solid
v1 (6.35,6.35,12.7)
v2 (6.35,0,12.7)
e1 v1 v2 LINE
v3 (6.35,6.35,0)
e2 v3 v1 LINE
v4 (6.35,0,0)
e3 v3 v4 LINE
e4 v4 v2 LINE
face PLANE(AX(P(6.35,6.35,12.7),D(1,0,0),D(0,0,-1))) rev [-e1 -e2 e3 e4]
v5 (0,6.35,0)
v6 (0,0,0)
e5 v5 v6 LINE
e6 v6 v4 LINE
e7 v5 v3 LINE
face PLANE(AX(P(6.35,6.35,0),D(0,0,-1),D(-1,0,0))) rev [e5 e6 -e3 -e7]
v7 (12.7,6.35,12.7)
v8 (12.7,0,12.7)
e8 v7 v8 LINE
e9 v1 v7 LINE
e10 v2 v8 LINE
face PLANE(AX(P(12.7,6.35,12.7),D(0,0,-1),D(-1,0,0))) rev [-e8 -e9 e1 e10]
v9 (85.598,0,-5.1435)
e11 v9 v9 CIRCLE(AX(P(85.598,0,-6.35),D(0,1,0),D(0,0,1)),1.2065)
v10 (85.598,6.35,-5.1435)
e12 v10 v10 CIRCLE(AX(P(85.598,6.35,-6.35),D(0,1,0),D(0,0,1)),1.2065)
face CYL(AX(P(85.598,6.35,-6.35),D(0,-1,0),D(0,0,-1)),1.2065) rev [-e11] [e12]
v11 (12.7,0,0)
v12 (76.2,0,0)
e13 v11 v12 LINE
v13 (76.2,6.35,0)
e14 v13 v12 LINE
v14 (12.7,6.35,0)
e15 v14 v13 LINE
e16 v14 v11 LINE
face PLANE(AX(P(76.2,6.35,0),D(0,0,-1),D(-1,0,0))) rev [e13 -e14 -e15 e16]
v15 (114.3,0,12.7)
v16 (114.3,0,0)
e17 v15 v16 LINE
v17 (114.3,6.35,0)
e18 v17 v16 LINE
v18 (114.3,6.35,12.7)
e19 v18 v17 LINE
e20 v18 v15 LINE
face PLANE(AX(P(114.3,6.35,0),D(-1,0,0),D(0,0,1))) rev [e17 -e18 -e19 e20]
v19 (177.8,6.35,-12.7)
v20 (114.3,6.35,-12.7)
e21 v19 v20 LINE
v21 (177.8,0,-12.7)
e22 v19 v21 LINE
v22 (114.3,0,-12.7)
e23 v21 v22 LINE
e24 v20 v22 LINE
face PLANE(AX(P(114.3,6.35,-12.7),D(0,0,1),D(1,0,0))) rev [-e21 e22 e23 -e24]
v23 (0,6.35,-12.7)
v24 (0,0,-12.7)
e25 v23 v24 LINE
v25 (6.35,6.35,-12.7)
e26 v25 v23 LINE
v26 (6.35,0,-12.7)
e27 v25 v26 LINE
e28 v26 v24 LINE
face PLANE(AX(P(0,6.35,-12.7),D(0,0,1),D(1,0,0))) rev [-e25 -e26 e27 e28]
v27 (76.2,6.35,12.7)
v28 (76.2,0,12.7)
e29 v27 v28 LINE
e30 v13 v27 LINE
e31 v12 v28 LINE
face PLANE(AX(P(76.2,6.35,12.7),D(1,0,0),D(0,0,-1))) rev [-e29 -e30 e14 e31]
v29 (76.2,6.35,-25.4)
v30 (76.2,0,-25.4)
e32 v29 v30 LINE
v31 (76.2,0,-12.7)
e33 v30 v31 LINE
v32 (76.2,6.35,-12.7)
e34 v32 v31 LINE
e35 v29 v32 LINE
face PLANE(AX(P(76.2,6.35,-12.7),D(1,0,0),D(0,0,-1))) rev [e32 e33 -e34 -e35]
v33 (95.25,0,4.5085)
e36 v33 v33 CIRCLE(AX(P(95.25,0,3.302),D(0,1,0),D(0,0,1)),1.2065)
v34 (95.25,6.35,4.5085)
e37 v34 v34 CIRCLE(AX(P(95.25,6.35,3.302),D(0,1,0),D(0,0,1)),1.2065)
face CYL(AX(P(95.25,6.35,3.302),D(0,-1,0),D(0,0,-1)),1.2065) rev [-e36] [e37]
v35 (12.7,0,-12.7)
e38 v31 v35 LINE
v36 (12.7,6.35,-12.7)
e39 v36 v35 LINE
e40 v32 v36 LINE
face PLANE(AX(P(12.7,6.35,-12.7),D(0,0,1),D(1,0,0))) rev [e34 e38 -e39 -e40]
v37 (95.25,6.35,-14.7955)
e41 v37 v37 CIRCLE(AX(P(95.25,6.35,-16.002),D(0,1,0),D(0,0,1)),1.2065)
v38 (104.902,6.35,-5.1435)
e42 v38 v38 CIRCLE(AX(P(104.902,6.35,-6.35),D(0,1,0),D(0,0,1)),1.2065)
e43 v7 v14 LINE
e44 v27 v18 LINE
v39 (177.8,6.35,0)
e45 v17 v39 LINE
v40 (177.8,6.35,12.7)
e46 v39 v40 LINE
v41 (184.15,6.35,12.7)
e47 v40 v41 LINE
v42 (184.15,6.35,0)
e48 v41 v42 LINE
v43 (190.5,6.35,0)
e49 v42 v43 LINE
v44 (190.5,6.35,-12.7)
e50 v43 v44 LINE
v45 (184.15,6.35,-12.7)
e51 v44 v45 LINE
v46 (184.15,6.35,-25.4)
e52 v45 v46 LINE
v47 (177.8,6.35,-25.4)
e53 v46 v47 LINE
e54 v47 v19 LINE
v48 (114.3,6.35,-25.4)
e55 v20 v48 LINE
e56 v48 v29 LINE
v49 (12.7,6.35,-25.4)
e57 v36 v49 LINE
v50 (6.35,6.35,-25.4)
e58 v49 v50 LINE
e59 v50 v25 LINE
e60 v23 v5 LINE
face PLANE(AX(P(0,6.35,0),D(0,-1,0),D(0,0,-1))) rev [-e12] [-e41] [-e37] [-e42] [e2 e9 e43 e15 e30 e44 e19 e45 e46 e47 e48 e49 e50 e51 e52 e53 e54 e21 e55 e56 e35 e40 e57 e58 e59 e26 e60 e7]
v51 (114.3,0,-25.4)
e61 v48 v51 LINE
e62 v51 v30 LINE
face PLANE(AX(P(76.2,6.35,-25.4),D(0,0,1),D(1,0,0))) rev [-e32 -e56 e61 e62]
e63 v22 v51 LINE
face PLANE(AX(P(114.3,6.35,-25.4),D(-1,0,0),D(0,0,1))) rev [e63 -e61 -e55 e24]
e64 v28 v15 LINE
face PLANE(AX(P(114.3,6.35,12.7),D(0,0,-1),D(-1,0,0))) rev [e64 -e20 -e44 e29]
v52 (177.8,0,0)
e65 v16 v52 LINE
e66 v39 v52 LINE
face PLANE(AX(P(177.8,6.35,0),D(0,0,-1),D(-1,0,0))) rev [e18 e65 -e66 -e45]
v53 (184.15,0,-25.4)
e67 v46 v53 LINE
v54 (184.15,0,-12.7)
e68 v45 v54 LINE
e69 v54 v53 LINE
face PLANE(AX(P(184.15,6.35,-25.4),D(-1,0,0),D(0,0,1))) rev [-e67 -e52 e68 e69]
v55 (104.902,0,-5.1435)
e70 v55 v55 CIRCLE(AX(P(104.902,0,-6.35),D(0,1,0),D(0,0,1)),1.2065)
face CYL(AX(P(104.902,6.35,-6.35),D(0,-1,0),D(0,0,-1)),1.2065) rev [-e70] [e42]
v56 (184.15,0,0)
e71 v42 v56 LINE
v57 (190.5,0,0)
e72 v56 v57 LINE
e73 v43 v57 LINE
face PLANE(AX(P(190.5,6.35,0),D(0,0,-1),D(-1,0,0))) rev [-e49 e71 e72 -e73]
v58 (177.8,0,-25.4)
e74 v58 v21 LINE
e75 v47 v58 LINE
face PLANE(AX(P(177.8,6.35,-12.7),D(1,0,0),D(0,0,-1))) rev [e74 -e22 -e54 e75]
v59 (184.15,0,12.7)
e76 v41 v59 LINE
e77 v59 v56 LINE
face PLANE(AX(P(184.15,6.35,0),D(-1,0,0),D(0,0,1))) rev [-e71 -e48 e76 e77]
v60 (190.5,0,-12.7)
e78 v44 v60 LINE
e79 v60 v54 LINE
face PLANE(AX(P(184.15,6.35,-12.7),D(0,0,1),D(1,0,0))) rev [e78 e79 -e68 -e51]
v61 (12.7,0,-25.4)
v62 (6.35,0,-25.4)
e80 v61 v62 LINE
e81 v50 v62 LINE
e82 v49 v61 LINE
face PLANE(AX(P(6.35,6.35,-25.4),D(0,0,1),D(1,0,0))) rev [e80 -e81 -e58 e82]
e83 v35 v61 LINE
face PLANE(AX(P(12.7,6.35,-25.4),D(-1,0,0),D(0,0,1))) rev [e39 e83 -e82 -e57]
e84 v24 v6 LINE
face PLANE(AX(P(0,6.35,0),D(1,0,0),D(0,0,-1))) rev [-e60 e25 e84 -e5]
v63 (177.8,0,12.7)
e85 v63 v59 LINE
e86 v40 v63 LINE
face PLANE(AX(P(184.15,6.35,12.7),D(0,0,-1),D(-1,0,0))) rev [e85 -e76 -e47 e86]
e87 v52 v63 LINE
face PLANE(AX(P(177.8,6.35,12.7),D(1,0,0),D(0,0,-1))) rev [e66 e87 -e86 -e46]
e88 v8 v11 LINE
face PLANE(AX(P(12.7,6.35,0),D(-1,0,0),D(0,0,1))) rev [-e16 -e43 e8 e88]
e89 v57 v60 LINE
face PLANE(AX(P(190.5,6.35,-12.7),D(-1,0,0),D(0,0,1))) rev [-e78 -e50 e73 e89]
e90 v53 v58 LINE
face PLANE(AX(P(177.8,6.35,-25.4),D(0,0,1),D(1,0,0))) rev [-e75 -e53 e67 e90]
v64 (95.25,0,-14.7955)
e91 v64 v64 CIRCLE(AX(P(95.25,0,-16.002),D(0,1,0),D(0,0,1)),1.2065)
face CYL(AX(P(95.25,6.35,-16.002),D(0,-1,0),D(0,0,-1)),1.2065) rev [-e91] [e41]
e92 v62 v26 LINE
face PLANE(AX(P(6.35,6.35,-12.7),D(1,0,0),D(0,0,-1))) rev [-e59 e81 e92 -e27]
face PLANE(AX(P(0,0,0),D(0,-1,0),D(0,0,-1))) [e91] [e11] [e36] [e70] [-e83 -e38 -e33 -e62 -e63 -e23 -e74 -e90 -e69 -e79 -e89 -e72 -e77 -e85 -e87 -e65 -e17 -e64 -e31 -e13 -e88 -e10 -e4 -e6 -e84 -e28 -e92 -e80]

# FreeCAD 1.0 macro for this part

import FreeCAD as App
import Part
import Sketcher

V = App.Vector
Q = App.Units.Quantity

doc = App.newDocument("Part")
body = doc.addObject("PartDesign::Body", "Body")

# Sketch on XZ plane
sketch1 = doc.addObject("Sketcher::SketchObject", "Sketch")
body.addObject(sketch1)
sketch1.AttachmentSupport = (doc.XZ_Plane, [""])
sketch1.MapMode = "FlatFace"
sketch1.addGeometry([
    Part.LineSegment(V(0, -12.7, 0), V(0, 0, 0)),  # 0
    Part.LineSegment(V(0, 0, 0), V(6.3, 0, 0)),  # 1
    Part.LineSegment(V(6.3, 0, 0), V(6.3, 12.7, 0)),  # 2
    Part.LineSegment(V(6.3, 12.7, 0), V(12.7, 12.7, 0)),  # 3
    Part.LineSegment(V(12.7, 12.7, 0), V(12.7, 0, 0)),  # 4
    Part.LineSegment(V(12.7, 0, 0), V(76.2, 0, 0)),  # 5
    Part.LineSegment(V(76.2, 0, 0), V(76.2, 12.7, 0)),  # 6
    Part.LineSegment(V(76.2, 12.7, 0), V(114.3, 12.7, 0)),  # 7
    Part.LineSegment(V(114.3, 12.7, 0), V(114.3, 0, 0)),  # 8
    Part.LineSegment(V(114.3, 0, 0), V(177.8, 0, 0)),  # 9
    Part.LineSegment(V(177.8, 0, 0), V(177.8, 12.7, 0)),  # 10
    Part.LineSegment(V(177.8, 12.7, 0), V(184.2, 12.7, 0)),  # 11
    Part.LineSegment(V(184.2, 12.7, 0), V(184.2, 0, 0)),  # 12
    Part.LineSegment(V(184.2, 0, 0), V(190.5, 0, 0)),  # 13
    Part.LineSegment(V(190.5, 0, 0), V(190.5, -12.7, 0)),  # 14
    Part.LineSegment(V(190.5, -12.7, 0), V(184.2, -12.7, 0)),  # 15
    Part.LineSegment(V(184.2, -12.7, 0), V(184.2, -25.4, 0)),  # 16
    Part.LineSegment(V(184.2, -25.4, 0), V(177.8, -25.4, 0)),  # 17
    Part.LineSegment(V(177.8, -25.4, 0), V(177.8, -12.7, 0)),  # 18
    Part.LineSegment(V(177.8, -12.7, 0), V(114.3, -12.7, 0)),  # 19
    Part.LineSegment(V(114.3, -12.7, 0), V(114.3, -25.4, 0)),  # 20
    Part.LineSegment(V(114.3, -25.4, 0), V(76.2, -25.4, 0)),  # 21
    Part.LineSegment(V(76.2, -25.4, 0), V(76.2, -12.7, 0)),  # 22
    Part.LineSegment(V(76.2, -12.7, 0), V(12.7, -12.7, 0)),  # 23
    Part.LineSegment(V(12.7, -12.7, 0), V(12.7, -25.4, 0)),  # 24
    Part.LineSegment(V(12.7, -25.4, 0), V(6.3, -25.4, 0)),  # 25
    Part.LineSegment(V(6.3, -25.4, 0), V(6.3, -12.7, 0)),  # 26
    Part.LineSegment(V(6.3, -12.7, 0), V(0, -12.7, 0)),  # 27
    Part.Circle(V(104.9, -6.3, 0), V(0, 0, 1), 1.2),  # 28
    Part.Circle(V(95.2, 3.3, 0), V(0, 0, 1), 1.2),  # 29
    Part.Circle(V(85.6, -6.3, 0), V(0, 0, 1), 1.2),  # 30
    Part.Circle(V(95.2, -16, 0), V(0, 0, 1), 1.2),  # 31
], False)
sketch1.addConstraint([
    Sketcher.Constraint("Coincident", 0, 2, 1, 1),
    Sketcher.Constraint("Coincident", 1, 2, 2, 1),
    Sketcher.Constraint("Coincident", 2, 2, 3, 1),
    Sketcher.Constraint("Coincident", 3, 2, 4, 1),
    Sketcher.Constraint("Coincident", 4, 2, 5, 1),
    Sketcher.Constraint("Coincident", 5, 2, 6, 1),
    Sketcher.Constraint("Coincident", 6, 2, 7, 1),
    Sketcher.Constraint("Coincident", 7, 2, 8, 1),
    Sketcher.Constraint("Coincident", 8, 2, 9, 1),
    Sketcher.Constraint("Coincident", 9, 2, 10, 1),
    Sketcher.Constraint("Coincident", 10, 2, 11, 1),
    Sketcher.Constraint("Coincident", 11, 2, 12, 1),
    Sketcher.Constraint("Coincident", 12, 2, 13, 1),
    Sketcher.Constraint("Coincident", 13, 2, 14, 1),
    Sketcher.Constraint("Coincident", 14, 2, 15, 1),
    Sketcher.Constraint("Coincident", 15, 2, 16, 1),
    Sketcher.Constraint("Coincident", 16, 2, 17, 1),
    Sketcher.Constraint("Coincident", 17, 2, 18, 1),
    Sketcher.Constraint("Coincident", 18, 2, 19, 1),
    Sketcher.Constraint("Coincident", 19, 2, 20, 1),
    Sketcher.Constraint("Coincident", 20, 2, 21, 1),
    Sketcher.Constraint("Coincident", 21, 2, 22, 1),
    Sketcher.Constraint("Coincident", 22, 2, 23, 1),
    Sketcher.Constraint("Coincident", 23, 2, 24, 1),
    Sketcher.Constraint("Coincident", 24, 2, 25, 1),
    Sketcher.Constraint("Coincident", 25, 2, 26, 1),
    Sketcher.Constraint("Coincident", 26, 2, 27, 1),
    Sketcher.Constraint("Coincident", 27, 2, 0, 1),
    Sketcher.Constraint("Vertical", 0),
    Sketcher.Constraint("Horizontal", 1),
    Sketcher.Constraint("Vertical", 2),
    Sketcher.Constraint("Horizontal", 3),
    Sketcher.Constraint("Vertical", 4),
    Sketcher.Constraint("Horizontal", 5),
    Sketcher.Constraint("Vertical", 6),
    Sketcher.Constraint("Horizontal", 7),
    Sketcher.Constraint("Vertical", 8),
    Sketcher.Constraint("Horizontal", 9),
    Sketcher.Constraint("Vertical", 10),
    Sketcher.Constraint("Horizontal", 11),
    Sketcher.Constraint("Vertical", 12),
    Sketcher.Constraint("Horizontal", 13),
    Sketcher.Constraint("Vertical", 14),
    Sketcher.Constraint("Horizontal", 15),
    Sketcher.Constraint("Vertical", 16),
    Sketcher.Constraint("Horizontal", 17),
    Sketcher.Constraint("Vertical", 18),
    Sketcher.Constraint("Horizontal", 19),
    Sketcher.Constraint("Vertical", 20),
    Sketcher.Constraint("Horizontal", 21),
    Sketcher.Constraint("Vertical", 22),
    Sketcher.Constraint("Horizontal", 23),
    Sketcher.Constraint("Vertical", 24),
    Sketcher.Constraint("Horizontal", 25),
    Sketcher.Constraint("Vertical", 26),
    Sketcher.Constraint("Horizontal", 27),
    Sketcher.Constraint("Coincident", 0, 2, -1, 1),
    Sketcher.Constraint("Equal", 28, 29),
    Sketcher.Constraint("Equal", 29, 30),
    Sketcher.Constraint("Equal", 30, 31),
    Sketcher.Constraint("Symmetric", 11, 2, 15, 2, -1),
    Sketcher.Constraint("Symmetric", 10, 2, 18, 2, -1),
    Sketcher.Constraint("Symmetric", 7, 2, 19, 2, -1),
    Sketcher.Constraint("Symmetric", 6, 2, 22, 2, -1),
    Sketcher.Constraint("Symmetric", 3, 2, 23, 2, -1),
    Sketcher.Constraint("Symmetric", 2, 2, 26, 2, -1),
    Sketcher.Constraint("PointOnObject", 4, 2, -1),
    Sketcher.Constraint("PointOnObject", 8, 2, -1),
    Sketcher.Constraint("PointOnObject", 12, 2, -1),
    Sketcher.Constraint("Horizontal", 28, 3, 30, 3),
    Sketcher.Constraint("Horizontal", 17, 2, 20, 2),
    Sketcher.Constraint("Horizontal", 21, 2, 24, 2),
    Sketcher.Constraint("Vertical", 29, 3, 31, 3),
    Sketcher.Constraint("Equal", 1, 3),
    Sketcher.Constraint("Equal", 5, 9),
    Sketcher.Constraint("Equal", 3, 11),
    Sketcher.Constraint("Equal", 11, 13),
    Sketcher.Constraint("Equal", 14, 16),
    Sketcher.Constraint("Diameter", 28, Q("0.095 in")),
    Sketcher.Constraint("DistanceX", 5, 1, 5, 2, Q("2.5 in")),
    Sketcher.Constraint("DistanceX", 7, 1, 7, 2, Q("1.5 in")),
    Sketcher.Constraint("DistanceY", 0, 1, 0, 2, Q("0.5 in")),
    Sketcher.Constraint("DistanceX", -1, 1, 5, 2, Q("3 in")),
    Sketcher.Constraint("DistanceX", 1, 2, 29, 3, Q("3.5 in")),
    Sketcher.Constraint("DistanceX", -1, 1, 28, 3, Q("4.13 in")),
    Sketcher.Constraint("DistanceY", 28, 3, -1, 1, Q("0.25 in")),
    Sketcher.Constraint("DistanceY", -1, 1, 29, 3, Q("0.13 in")),
    Sketcher.Constraint("DistanceX", -1, 1, 30, 3, Q("3.37 in")),
    Sketcher.Constraint("DistanceY", 31, 3, -1, 1, Q("0.63 in")),
])
pad1 = doc.addObject("PartDesign::Pad", "Pad")
body.addObject(pad1)
pad1.Profile = sketch1
pad1.Length = Q("0.25 in")
pad1.Reversed = True

doc.recompute()
